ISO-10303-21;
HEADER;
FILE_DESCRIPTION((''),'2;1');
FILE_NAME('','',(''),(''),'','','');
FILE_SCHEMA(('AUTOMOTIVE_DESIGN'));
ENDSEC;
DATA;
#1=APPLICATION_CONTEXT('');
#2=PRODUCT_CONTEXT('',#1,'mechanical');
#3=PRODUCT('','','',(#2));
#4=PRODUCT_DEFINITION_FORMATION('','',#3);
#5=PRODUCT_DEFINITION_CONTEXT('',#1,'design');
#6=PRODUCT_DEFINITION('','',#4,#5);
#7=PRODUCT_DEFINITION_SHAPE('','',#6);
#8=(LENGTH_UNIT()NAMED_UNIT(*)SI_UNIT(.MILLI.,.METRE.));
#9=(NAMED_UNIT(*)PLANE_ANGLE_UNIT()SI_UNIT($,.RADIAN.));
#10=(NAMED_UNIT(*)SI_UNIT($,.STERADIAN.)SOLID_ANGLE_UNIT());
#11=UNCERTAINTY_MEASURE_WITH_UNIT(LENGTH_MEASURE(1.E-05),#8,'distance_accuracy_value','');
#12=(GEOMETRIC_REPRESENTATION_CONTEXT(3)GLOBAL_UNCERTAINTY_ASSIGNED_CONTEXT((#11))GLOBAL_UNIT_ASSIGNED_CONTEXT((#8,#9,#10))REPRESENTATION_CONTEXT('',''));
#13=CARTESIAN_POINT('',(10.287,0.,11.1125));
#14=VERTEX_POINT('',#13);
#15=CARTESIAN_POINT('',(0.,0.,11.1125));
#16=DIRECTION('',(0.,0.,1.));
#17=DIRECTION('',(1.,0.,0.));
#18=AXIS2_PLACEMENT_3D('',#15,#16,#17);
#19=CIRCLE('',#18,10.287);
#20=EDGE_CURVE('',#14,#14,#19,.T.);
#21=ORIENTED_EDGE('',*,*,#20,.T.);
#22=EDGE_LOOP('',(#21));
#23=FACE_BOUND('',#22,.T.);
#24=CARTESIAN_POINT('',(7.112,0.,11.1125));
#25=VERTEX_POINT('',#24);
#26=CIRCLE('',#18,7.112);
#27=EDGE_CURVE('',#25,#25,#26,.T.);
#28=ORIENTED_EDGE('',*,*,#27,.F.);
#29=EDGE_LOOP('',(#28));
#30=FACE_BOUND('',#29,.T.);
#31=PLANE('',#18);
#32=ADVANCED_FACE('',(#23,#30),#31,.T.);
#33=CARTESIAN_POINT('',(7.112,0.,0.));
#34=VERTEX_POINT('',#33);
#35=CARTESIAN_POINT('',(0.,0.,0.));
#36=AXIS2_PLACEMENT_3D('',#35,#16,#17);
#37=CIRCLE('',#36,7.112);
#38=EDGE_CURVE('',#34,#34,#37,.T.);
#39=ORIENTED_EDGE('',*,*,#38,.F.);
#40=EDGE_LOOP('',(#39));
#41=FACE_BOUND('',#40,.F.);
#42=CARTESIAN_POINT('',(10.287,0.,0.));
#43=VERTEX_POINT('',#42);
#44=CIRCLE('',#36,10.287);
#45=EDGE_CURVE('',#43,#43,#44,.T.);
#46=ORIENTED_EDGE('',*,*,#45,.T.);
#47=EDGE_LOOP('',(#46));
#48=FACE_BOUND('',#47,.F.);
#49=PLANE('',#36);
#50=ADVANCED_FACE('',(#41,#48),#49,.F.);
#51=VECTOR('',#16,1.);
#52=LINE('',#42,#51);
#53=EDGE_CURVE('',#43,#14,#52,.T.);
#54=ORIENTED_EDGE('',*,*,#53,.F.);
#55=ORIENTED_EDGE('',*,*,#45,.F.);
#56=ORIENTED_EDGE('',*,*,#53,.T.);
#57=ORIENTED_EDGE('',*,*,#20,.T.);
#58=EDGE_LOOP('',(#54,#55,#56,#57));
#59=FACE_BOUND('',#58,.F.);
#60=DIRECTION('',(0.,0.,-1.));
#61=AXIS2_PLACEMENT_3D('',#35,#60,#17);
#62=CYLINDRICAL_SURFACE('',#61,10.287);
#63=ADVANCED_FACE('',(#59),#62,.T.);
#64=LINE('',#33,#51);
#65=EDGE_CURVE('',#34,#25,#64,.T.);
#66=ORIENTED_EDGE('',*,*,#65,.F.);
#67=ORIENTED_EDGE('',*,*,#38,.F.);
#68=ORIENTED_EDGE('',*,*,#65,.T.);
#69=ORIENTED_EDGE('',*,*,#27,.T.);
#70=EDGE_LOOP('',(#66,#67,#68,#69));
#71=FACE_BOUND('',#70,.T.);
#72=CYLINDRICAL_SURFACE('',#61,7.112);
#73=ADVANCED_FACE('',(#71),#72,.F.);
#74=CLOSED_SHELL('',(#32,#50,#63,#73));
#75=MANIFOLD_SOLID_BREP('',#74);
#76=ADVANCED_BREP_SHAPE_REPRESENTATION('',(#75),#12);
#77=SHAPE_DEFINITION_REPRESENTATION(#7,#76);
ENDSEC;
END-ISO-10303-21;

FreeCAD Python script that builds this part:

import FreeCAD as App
import Part
import Sketcher
from FreeCAD import Vector
Q = App.Units.Quantity

doc = App.newDocument("Part")
params = doc.addObject("Spreadsheet::Sheet", "Params")
for row, (alias, value) in enumerate([
    ("sketch1_diameter", "0.56 in"),
    ("sketch1_diameter2", "0.81 in"),
    ("pad1_length", "0.4375 in"),
], start=1):
    params.set(f"A{row}", alias)
    params.set(f"B{row}", "=" + value)
    params.setAlias(f"B{row}", alias)

body = doc.addObject("PartDesign::Body", "Body")

# Sketch on XY plane
sketch1 = body.newObject("Sketcher::SketchObject", "Sketch")
sketch1.AttachmentSupport = (doc.getObject("XY_Plane"), [""])
sketch1.MapMode = "FlatFace"
sketch1.addGeometry([
    Part.Circle(Vector(0, 0, 0), Vector(0, 0, 1), 10),
    Part.Circle(Vector(0, 0, 0), Vector(0, 0, 1), 7),
], False)
sketch1.addConstraint([
    Sketcher.Constraint("Coincident", 0, 3, -1, 1),
    Sketcher.Constraint("Coincident", 1, 3, -1, 1),
    Sketcher.Constraint("Diameter", 1, Q("0.56 in")),
    Sketcher.Constraint("Diameter", 0, Q("0.81 in")),
])
sketch1.setExpression("Constraints[2]", "Params.sketch1_diameter")
sketch1.setExpression("Constraints[3]", "Params.sketch1_diameter2")
pad1 = body.newObject("PartDesign::Pad", "Pad")
pad1.Profile = sketch1
pad1.setExpression("Length", "Params.pad1_length")

doc.recompute()
